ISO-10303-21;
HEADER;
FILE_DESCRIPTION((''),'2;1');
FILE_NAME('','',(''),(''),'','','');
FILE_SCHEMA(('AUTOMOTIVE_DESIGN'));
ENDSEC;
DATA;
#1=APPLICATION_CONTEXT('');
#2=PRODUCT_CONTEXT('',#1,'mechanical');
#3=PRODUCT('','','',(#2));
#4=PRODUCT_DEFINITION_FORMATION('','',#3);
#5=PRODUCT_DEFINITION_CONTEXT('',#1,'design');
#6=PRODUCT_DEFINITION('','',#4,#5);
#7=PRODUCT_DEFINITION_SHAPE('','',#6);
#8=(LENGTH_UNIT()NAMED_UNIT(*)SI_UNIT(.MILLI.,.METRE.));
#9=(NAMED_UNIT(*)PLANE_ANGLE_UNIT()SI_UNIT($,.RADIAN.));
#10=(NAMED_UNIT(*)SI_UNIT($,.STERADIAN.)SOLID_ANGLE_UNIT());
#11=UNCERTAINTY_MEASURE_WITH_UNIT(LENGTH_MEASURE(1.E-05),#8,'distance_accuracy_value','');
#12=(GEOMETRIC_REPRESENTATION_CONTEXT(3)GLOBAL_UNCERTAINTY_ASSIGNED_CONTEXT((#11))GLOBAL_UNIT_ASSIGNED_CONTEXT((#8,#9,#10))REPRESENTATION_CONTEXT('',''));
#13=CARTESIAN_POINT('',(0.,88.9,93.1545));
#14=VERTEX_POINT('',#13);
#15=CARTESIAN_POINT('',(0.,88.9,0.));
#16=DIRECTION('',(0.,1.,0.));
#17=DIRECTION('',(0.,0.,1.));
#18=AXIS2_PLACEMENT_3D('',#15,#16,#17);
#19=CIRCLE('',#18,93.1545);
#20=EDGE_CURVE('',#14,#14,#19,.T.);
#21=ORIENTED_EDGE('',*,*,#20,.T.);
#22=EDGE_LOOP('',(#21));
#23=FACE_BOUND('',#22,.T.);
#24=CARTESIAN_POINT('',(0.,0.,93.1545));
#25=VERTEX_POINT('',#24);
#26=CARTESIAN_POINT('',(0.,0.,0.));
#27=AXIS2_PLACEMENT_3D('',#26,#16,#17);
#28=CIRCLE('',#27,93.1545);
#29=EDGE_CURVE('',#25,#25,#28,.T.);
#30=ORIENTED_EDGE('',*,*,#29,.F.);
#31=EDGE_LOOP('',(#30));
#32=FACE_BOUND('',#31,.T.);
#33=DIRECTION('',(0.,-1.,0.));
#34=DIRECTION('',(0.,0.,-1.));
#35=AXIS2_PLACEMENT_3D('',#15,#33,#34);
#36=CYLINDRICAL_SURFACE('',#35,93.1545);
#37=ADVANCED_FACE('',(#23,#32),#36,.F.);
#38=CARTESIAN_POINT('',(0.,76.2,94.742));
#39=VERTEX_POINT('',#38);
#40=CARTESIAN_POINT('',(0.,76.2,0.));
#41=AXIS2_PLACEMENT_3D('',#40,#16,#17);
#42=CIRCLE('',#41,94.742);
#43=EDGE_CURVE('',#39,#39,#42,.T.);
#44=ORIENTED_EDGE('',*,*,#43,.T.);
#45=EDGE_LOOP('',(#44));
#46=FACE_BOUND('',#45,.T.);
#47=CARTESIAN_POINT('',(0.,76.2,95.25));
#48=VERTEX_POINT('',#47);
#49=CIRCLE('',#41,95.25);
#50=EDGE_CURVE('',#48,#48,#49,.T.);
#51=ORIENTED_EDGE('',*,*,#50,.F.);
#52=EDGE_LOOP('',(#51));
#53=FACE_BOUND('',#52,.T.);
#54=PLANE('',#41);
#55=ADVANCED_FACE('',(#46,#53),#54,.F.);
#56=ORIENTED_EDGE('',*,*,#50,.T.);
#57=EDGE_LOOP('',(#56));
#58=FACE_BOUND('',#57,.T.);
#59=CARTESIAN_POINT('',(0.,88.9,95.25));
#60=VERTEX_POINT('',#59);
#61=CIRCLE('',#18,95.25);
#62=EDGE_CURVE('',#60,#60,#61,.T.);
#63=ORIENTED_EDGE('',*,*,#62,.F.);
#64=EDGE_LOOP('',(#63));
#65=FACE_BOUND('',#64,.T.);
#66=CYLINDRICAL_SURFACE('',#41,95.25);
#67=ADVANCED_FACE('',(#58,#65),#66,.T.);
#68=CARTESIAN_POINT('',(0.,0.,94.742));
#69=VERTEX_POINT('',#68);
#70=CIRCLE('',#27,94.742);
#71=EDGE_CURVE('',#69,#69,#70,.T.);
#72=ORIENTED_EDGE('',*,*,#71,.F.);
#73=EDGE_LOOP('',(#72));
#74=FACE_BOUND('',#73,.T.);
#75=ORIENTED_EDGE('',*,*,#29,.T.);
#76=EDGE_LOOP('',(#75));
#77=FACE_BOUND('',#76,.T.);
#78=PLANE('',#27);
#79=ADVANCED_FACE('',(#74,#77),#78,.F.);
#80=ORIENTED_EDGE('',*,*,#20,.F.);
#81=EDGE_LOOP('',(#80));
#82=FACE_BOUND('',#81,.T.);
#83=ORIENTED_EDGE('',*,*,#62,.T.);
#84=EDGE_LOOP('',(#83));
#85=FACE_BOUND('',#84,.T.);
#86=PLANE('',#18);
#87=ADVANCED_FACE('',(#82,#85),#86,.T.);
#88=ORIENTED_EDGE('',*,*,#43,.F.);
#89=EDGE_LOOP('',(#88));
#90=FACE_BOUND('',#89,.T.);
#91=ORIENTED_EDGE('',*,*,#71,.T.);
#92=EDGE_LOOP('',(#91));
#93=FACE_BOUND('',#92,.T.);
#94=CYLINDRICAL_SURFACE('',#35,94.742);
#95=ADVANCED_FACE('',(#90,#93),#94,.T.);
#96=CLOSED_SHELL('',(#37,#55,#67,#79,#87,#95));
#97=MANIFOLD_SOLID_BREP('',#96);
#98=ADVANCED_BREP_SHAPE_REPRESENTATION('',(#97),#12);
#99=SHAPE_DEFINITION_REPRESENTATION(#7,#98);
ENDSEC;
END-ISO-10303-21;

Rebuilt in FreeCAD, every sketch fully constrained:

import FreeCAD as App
import Part
import Sketcher

V = App.Vector
Q = App.Units.Quantity

doc = App.newDocument("Part")
body = doc.addObject("PartDesign::Body", "Body")

# Sketch on XZ plane
sketch1 = body.newObject("Sketcher::SketchObject", "Sketch")
sketch1.AttachmentSupport = (doc.getObject("XZ_Plane"), [""])
sketch1.MapMode = "FlatFace"
sketch1.addGeometry(Part.Circle(V(0, 0, 0), V(0, 0, 1), 95), False)
sketch1.addGeometry(Part.Circle(V(0, 0, 0), V(0, 0, 1), 93), False)
sketch1.addConstraint(Sketcher.Constraint("Coincident", 0, 3, -1, 1))
sketch1.addConstraint(Sketcher.Constraint("Coincident", 1, 3, -1, 1))
sketch1.addConstraint(Sketcher.Constraint("Diameter", 0, Q("7.46 in")))
sketch1.addConstraint(Sketcher.Constraint("Diameter", 1, Q("7.335 in")))
pad1 = body.newObject("PartDesign::Pad", "Pad")
pad1.Profile = sketch1
pad1.Length = Q("3.5 in")
pad1.Reversed = True

# Sketch on XZ plane
sketch2 = body.newObject("Sketcher::SketchObject", "Sketch001")
sketch2.AttachmentSupport = (doc.getObject("XZ_Plane"), [""])
sketch2.MapMode = "FlatFace"
sketch2.AttachmentOffset = App.Placement(V(0, 0, -3.5 * 25.4), App.Rotation())
sketch2.addGeometry(Part.Circle(V(0, 0, 0), V(0, 0, 1), 95), False)
sketch2.addGeometry(Part.Circle(V(0, 0, 0), V(0, 0, 1), 95), False)
sketch2.addConstraint(Sketcher.Constraint("Coincident", 0, 3, -1, 1))
sketch2.addConstraint(Sketcher.Constraint("Coincident", 1, 3, -1, 1))
sketch2.addConstraint(Sketcher.Constraint("Diameter", 0, Q("7.5 in")))
sketch2.addConstraint(Sketcher.Constraint("Diameter", 1, Q("7.46 in")))
pad2 = body.newObject("PartDesign::Pad", "Pad001")
pad2.Profile = sketch2
pad2.Length = Q("0.5 in")

doc.recompute()
